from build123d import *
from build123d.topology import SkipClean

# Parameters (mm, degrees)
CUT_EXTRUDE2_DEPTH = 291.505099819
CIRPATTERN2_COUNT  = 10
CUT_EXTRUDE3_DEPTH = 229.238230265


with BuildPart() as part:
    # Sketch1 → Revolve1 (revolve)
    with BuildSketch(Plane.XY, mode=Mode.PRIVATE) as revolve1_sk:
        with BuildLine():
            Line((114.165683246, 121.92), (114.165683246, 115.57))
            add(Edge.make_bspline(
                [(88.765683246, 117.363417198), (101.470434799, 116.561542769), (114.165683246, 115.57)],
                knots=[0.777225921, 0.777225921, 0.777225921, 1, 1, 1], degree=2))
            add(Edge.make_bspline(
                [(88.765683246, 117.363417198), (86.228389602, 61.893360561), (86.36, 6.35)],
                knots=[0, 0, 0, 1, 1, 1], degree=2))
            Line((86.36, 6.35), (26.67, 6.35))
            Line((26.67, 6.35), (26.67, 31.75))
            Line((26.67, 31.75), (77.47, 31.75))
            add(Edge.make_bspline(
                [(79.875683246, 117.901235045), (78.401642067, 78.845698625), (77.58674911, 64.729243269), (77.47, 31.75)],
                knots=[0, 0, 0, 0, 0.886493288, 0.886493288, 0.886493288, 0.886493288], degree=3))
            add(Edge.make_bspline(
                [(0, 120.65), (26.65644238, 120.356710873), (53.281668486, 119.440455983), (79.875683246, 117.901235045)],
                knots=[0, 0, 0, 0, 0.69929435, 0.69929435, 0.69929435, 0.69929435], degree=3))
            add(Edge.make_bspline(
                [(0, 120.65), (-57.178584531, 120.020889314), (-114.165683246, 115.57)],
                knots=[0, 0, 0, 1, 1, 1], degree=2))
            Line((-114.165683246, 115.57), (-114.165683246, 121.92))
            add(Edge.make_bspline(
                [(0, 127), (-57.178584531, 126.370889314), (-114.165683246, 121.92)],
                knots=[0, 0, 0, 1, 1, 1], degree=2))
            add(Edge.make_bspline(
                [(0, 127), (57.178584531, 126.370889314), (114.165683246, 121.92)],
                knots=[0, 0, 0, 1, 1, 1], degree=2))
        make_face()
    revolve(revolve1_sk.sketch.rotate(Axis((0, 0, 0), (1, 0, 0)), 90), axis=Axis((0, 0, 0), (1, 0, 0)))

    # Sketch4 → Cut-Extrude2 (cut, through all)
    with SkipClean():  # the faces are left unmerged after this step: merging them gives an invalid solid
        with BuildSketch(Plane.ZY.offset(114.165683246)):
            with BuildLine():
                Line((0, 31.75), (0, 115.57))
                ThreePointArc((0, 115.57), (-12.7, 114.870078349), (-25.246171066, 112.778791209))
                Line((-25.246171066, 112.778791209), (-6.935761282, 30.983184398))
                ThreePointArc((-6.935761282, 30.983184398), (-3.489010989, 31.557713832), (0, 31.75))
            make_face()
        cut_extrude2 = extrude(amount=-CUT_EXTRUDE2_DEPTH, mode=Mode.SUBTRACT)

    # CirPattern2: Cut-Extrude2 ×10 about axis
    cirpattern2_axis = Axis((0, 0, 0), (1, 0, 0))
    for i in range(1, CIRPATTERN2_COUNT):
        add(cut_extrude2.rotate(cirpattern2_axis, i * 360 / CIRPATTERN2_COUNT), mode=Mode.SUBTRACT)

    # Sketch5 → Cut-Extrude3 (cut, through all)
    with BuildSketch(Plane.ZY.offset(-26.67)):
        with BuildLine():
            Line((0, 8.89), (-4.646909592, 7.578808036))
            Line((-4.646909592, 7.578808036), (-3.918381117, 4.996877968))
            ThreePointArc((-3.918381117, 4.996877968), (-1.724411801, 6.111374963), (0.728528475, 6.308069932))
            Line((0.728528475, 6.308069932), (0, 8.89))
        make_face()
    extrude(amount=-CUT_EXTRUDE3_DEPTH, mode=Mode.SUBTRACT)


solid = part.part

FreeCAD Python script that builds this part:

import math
import FreeCAD as App
import Part
import Sketcher
from FreeCAD import Vector
Q = App.Units.Quantity

doc = App.newDocument("Part")
body = doc.addObject("PartDesign::Body", "Body")

sketch1 = body.newObject("Sketcher::SketchObject", "Sketch")
sketch1.AttachmentSupport = (doc.getObject("XY_Plane"), [""])
sketch1.MapMode = "FlatFace"
sketch1.addGeometry(Part.LineSegment(Vector(114.165683, 115.57, 0), Vector(114.165683, 121.92, 0)), False)
sketch1.addGeometry(Part.BSplineCurve([Vector(0, 127, 0), Vector(57.178585, 126.370889, 0), Vector(114.165683, 121.92, 0)], [3, 3], [0, 1], False, 2, [1, 1, 1], False), False)
sketch1.addGeometry(Part.BSplineCurve([Vector(0, 127, 0), Vector(-57.178585, 126.370889, 0), Vector(-114.165683, 121.92, 0)], [3, 3], [0, 1], False, 2, [1, 1, 1], False), False)
sketch1.addGeometry(Part.LineSegment(Vector(-114.165683, 121.92, 0), Vector(-114.165683, 115.57, 0)), False)
sketch1.addGeometry(Part.BSplineCurve([Vector(0, 120.65, 0), Vector(-57.178585, 120.020889, 0), Vector(-114.165683, 115.57, 0)], [3, 3], [0, 1], False, 2, [1, 1, 1], False), False)
sketch1.addGeometry(Part.BSplineCurve([Vector(0, 120.65, 0), Vector(26.656442, 120.356711, 0), Vector(53.281668, 119.440456, 0), Vector(79.875683, 117.901235, 0)], [4, 4], [0, 0.69929435], False, 3, [1, 1, 1, 1], False), False)
sketch1.addGeometry(Part.BSplineCurve([Vector(79.875683, 117.901235, 0), Vector(78.401642, 78.845699, 0), Vector(77.586749, 64.729243, 0), Vector(77.47, 31.75, 0)], [4, 4], [0, 0.886493288], False, 3, [1, 1, 1, 1], False), False)
sketch1.addGeometry(Part.LineSegment(Vector(77.47, 31.75, 0), Vector(26.67, 31.75, 0)), False)
sketch1.addGeometry(Part.LineSegment(Vector(26.67, 31.75, 0), Vector(26.67, 6.35, 0)), False)
sketch1.addGeometry(Part.LineSegment(Vector(26.67, 6.35, 0), Vector(86.36, 6.35, 0)), False)
sketch1.addGeometry(Part.BSplineCurve([Vector(88.765683, 117.363417, 0), Vector(86.22839, 61.893361, 0), Vector(86.36, 6.35, 0)], [3, 3], [0, 1], False, 2, [1, 1, 1], False), False)
sketch1.addGeometry(Part.BSplineCurve([Vector(88.765683, 117.363417, 0), Vector(101.470435, 116.561543, 0), Vector(114.165683, 115.57, 0)], [3, 3], [0.777225921, 1], False, 2, [1, 1, 1], False), False)
sketch1.addConstraint(Sketcher.Constraint("Block", 1))
sketch1.addConstraint(Sketcher.Constraint("Block", 2))
sketch1.addConstraint(Sketcher.Constraint("Block", 4))
sketch1.addConstraint(Sketcher.Constraint("Block", 5))
sketch1.addConstraint(Sketcher.Constraint("Block", 6))
sketch1.addConstraint(Sketcher.Constraint("Block", 10))
sketch1.addConstraint(Sketcher.Constraint("Block", 11))
sketch1.addConstraint(Sketcher.Constraint("Coincident", 0, 2, 1, 2))
sketch1.addConstraint(Sketcher.Constraint("Coincident", 2, 2, 3, 1))
sketch1.addConstraint(Sketcher.Constraint("Coincident", 3, 2, 4, 2))
sketch1.addConstraint(Sketcher.Constraint("Coincident", 6, 2, 7, 1))
sketch1.addConstraint(Sketcher.Constraint("Coincident", 7, 2, 8, 1))
sketch1.addConstraint(Sketcher.Constraint("Coincident", 8, 2, 9, 1))
sketch1.addConstraint(Sketcher.Constraint("Coincident", 9, 2, 10, 2))
sketch1.addConstraint(Sketcher.Constraint("Coincident", 11, 2, 0, 1))
sketch1.addConstraint(Sketcher.Constraint("Horizontal", 7))
sketch1.addConstraint(Sketcher.Constraint("Vertical", 8))
sketch1.addConstraint(Sketcher.Constraint("Horizontal", 9))
sketch1.addConstraint(Sketcher.Constraint("DistanceX", 7, 2, 7, 1, Q("2 in")))
revolution = body.newObject("PartDesign::Revolution", "Revolution")
revolution.Profile = sketch1
revolution.ReferenceAxis = (sketch1, ["H_Axis"])
revolution.Angle = 360

sketch2 = body.newObject("Sketcher::SketchObject", "Sketch001")
sketch2.AttachmentSupport = (doc.getObject("YZ_Plane"), [""])
sketch2.MapMode = "FlatFace"
sketch2.AttachmentOffset = App.Placement(Vector(0, 0, -114.165683), App.Rotation())
sketch2.addGeometry(Part.LineSegment(Vector(32, 0, 0), Vector(116, 0, 0)), False)
sketch2.addGeometry(Part.ArcOfCircle(Part.Circle(Vector(0, 0, 0), Vector(0, 0, 1), 116), math.radians(-12.62), math.radians(0)), False)
sketch2.addGeometry(Part.LineSegment(Vector(113, -25, 0), Vector(31, -7, 0)), False)
sketch2.addGeometry(Part.ArcOfCircle(Part.Circle(Vector(0, 0, 0), Vector(0, 0, 1), 32), math.radians(-12.62), math.radians(0)), False)
sketch2.addConstraint(Sketcher.Constraint("Coincident", 0, 2, 1, 2))
sketch2.addConstraint(Sketcher.Constraint("Coincident", 1, 1, 2, 1))
sketch2.addConstraint(Sketcher.Constraint("Coincident", 2, 2, 3, 1))
sketch2.addConstraint(Sketcher.Constraint("Coincident", 3, 2, 0, 1))
sketch2.addConstraint(Sketcher.Constraint("Horizontal", 0))
sketch2.addConstraint(Sketcher.Constraint("Coincident", 1, 3, -1, 1))
sketch2.addConstraint(Sketcher.Constraint("Coincident", 3, 3, -1, 1))
sketch2.addConstraint(Sketcher.Constraint("PointOnObject", 0, 2, -1))
sketch2.addConstraint(Sketcher.Constraint("Radius", 1, Q("4.55 in")))
sketch2.addConstraint(Sketcher.Constraint("Radius", 3, Q("1.25 in")))
sketch2.addConstraint(Sketcher.Constraint("DistanceX", -1, 1, 1, 1, Q("112.778791 mm")))
sketch2.addConstraint(Sketcher.Constraint("DistanceY", 2, 2, -1, 1, Q("6.935761 mm")))
pocket1 = body.newObject("PartDesign::Pocket", "Pocket")
pocket1.Profile = sketch2
pocket1.Type = "ThroughAll"
pocket1.Reversed = True
doc.recompute()

polarpattern = body.newObject("PartDesign::PolarPattern", "PolarPattern")
polarpattern.Originals = [pocket1]
polarpattern.Axis = (doc.getObject("X_Axis"), [""])
polarpattern.Angle = 360
polarpattern.Occurrences = 10
body.Tip = polarpattern

sketch3 = body.newObject("Sketcher::SketchObject", "Sketch002")
sketch3.AttachmentSupport = (doc.getObject("YZ_Plane"), [""])
sketch3.MapMode = "FlatFace"
sketch3.AttachmentOffset = App.Placement(Vector(0, 0, 1.05 * 25.4), App.Rotation())
sketch3.addGeometry(Part.LineSegment(Vector(8.9, 0, 0), Vector(7.6, -4.6, 0)), False)
sketch3.addGeometry(Part.LineSegment(Vector(7.6, -4.6, 0), Vector(5, -3.9, 0)), False)
sketch3.addGeometry(Part.ArcOfCircle(Part.Circle(Vector(0, 0, 0), Vector(0, 0, 1), 6.4), math.radians(-38), math.radians(7)), False)
sketch3.addGeometry(Part.LineSegment(Vector(6.3, 0.7, 0), Vector(8.9, 0, 0)), False)
sketch3.addConstraint(Sketcher.Constraint("Coincident", 0, 2, 1, 1))
sketch3.addConstraint(Sketcher.Constraint("Coincident", 1, 2, 2, 1))
sketch3.addConstraint(Sketcher.Constraint("Coincident", 2, 2, 3, 1))
sketch3.addConstraint(Sketcher.Constraint("Coincident", 3, 2, 0, 1))
sketch3.addConstraint(Sketcher.Constraint("Coincident", 2, 3, -1, 1))
sketch3.addConstraint(Sketcher.Constraint("PointOnObject", 3, 2, -1))
sketch3.addConstraint(Sketcher.Constraint("Perpendicular", 0, 1))
sketch3.addConstraint(Sketcher.Constraint("Parallel", 1, 3))
sketch3.addConstraint(Sketcher.Constraint("Equal", 1, 3))
sketch3.addConstraint(Sketcher.Constraint("Radius", 2, Q("0.25 in")))
sketch3.addConstraint(Sketcher.Constraint("DistanceX", -1, 1, 3, 2, Q("0.35 in")))
sketch3.addConstraint(Sketcher.Constraint("DistanceX", -1, 1, 0, 2, Q("7.578808 mm")))
pocket2 = body.newObject("PartDesign::Pocket", "Pocket001")
pocket2.Profile = sketch3
pocket2.Type = "ThroughAll"
pocket2.Reversed = True

doc.recompute()
